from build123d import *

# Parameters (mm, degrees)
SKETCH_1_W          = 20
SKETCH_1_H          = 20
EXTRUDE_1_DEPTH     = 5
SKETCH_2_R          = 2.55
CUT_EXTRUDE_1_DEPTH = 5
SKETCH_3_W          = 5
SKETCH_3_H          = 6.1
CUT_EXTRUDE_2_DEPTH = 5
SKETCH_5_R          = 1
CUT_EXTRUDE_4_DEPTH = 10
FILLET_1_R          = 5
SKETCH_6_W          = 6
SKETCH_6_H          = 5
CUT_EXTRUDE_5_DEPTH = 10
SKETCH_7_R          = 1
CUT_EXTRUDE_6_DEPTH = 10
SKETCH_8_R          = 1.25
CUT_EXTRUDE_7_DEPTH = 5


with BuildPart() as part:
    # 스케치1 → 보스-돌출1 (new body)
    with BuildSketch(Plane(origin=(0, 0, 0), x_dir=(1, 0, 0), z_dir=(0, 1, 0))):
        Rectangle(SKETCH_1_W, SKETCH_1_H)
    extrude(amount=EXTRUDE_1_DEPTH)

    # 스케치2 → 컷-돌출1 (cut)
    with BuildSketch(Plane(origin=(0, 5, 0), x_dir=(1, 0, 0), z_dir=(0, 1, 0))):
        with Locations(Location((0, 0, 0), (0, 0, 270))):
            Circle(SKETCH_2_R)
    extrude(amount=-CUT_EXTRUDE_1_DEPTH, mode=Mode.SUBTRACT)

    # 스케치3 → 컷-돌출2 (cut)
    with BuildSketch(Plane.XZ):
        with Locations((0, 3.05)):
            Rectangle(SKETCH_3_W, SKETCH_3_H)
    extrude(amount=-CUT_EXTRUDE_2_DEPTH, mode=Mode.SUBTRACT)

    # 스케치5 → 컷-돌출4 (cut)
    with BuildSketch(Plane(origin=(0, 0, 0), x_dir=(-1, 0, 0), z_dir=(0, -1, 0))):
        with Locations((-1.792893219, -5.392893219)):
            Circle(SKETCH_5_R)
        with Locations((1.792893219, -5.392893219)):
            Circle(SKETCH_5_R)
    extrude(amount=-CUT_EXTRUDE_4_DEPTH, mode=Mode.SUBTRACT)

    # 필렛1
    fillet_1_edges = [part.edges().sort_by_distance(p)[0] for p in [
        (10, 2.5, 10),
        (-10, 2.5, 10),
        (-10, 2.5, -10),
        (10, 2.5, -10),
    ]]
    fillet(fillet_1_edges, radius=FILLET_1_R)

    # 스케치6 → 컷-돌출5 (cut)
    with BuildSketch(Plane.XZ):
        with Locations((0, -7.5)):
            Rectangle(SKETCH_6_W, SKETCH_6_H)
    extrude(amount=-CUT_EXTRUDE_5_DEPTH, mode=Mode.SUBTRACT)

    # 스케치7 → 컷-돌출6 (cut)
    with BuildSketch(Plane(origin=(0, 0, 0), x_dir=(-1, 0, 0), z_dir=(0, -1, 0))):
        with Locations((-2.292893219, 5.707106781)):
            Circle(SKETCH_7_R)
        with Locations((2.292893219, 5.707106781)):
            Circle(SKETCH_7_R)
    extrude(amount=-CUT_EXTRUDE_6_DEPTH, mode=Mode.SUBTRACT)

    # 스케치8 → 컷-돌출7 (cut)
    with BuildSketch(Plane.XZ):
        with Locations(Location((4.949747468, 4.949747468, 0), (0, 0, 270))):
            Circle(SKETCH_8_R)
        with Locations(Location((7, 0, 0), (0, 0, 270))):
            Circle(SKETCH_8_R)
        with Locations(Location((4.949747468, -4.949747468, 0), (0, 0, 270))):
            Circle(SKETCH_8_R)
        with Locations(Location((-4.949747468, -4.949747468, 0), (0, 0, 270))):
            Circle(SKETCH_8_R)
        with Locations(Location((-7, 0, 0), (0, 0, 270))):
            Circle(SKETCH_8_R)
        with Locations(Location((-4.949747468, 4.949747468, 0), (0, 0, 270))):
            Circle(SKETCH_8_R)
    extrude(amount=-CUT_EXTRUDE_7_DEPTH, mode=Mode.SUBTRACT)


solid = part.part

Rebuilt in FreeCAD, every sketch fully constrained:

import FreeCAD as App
import Part
import Sketcher


def edges_at(feature, points):
    """Names of the edges that pass closest to the given points."""
    edges = feature.Shape.Edges
    near = lambda p: min(range(len(edges)), key=lambda i: edges[i].distToShape(Part.Vertex(*p))[0])
    return sorted({f"Edge{near(p) + 1}" for p in points})


def add_polygon(sketch, points):
    """Adds a closed chain of lines whose ends are joined by coincident constraints."""
    first, n = sketch.GeometryCount, len(points)
    for a, b in zip(points, points[1:] + points[:1]):
        sketch.addGeometry(Part.LineSegment(App.Vector(*a, 0), App.Vector(*b, 0)), False)
    for i in range(n):
        sketch.addConstraint(Sketcher.Constraint("Coincident", first + i, 2, first + (i + 1) % n, 1))

doc = App.newDocument("Part")
body = doc.addObject("PartDesign::Body", "Body")

# Sketch on XZ plane
sketch1 = doc.addObject("Sketcher::SketchObject", "Sketch")
body.addObject(sketch1)
sketch1.AttachmentSupport = (doc.XZ_Plane, [""])
sketch1.MapMode = "FlatFace"
add_polygon(sketch1, [(-10, -10), (-10, 10), (10, 10), (10, -10)])  # lines 0-3
sketch1.addConstraint(Sketcher.Constraint("Vertical", 0))
sketch1.addConstraint(Sketcher.Constraint("Horizontal", 1))
sketch1.addConstraint(Sketcher.Constraint("Vertical", 2))
sketch1.addConstraint(Sketcher.Constraint("Horizontal", 3))
sketch1.addConstraint(Sketcher.Constraint("Symmetric", 0, 2, 2, 2, -1, 1))
sketch1.addConstraint(Sketcher.Constraint("Equal", 3, 0))
sketch1.addConstraint(Sketcher.Constraint("DistanceX", 1, 1, 1, 2, 20.0))
pad1 = doc.addObject("PartDesign::Pad", "Pad")
body.addObject(pad1)
pad1.Profile = sketch1
pad1.Length = 5
pad1.Reversed = True

# Sketch on XZ plane
sketch2 = doc.addObject("Sketcher::SketchObject", "Sketch001")
body.addObject(sketch2)
sketch2.AttachmentSupport = (doc.XZ_Plane, [""])
sketch2.MapMode = "FlatFace"
sketch2.AttachmentOffset = App.Placement(App.Vector(0, 0, -5), App.Rotation())
sketch2.addGeometry(Part.Circle(App.Vector(0, 0, 0), App.Vector(0, 0, 1), 2.5), False)
sketch2.addConstraint(Sketcher.Constraint("Coincident", 0, 3, -1, 1))
sketch2.addConstraint(Sketcher.Constraint("Diameter", 0, 5.1))
pocket1 = doc.addObject("PartDesign::Pocket", "Pocket")
body.addObject(pocket1)
pocket1.Profile = sketch2
pocket1.Length = 5
pocket1.Reversed = True

# Sketch on XZ plane
sketch3 = doc.addObject("Sketcher::SketchObject", "Sketch002")
body.addObject(sketch3)
sketch3.AttachmentSupport = (doc.XZ_Plane, [""])
sketch3.MapMode = "FlatFace"
add_polygon(sketch3, [(-2, 6), (-2, 0), (2, 0), (2, 6)])  # lines 0-3
sketch3.addConstraint(Sketcher.Constraint("Vertical", 0))
sketch3.addConstraint(Sketcher.Constraint("Horizontal", 1))
sketch3.addConstraint(Sketcher.Constraint("Vertical", 2))
sketch3.addConstraint(Sketcher.Constraint("Horizontal", 3))
sketch3.addConstraint(Sketcher.Constraint("Symmetric", 0, 2, 1, 2, -1, 1))
sketch3.addConstraint(Sketcher.Constraint("DistanceX", 1, 1, 1, 2, 5.0))
sketch3.addConstraint(Sketcher.Constraint("DistanceY", 0, 2, 0, 1, 6.1))
pocket2 = doc.addObject("PartDesign::Pocket", "Pocket001")
body.addObject(pocket2)
pocket2.Profile = sketch3
pocket2.Length = 5

# Sketch on XZ plane
sketch4 = doc.addObject("Sketcher::SketchObject", "Sketch003")
body.addObject(sketch4)
sketch4.AttachmentSupport = (doc.XZ_Plane, [""])
sketch4.MapMode = "FlatFace"
sketch4.addGeometry(Part.Circle(App.Vector(1.8, 5.4, 0), App.Vector(0, 0, 1), 1), False)
sketch4.addGeometry(Part.Circle(App.Vector(-1.8, 5.4, 0), App.Vector(0, 0, 1), 1), False)
sketch4.addConstraint(Sketcher.Constraint("Equal", 0, 1))
sketch4.addConstraint(Sketcher.Constraint("Symmetric", 0, 3, 1, 3, -2))
sketch4.addConstraint(Sketcher.Constraint("Diameter", 0, 2.0))
sketch4.addConstraint(Sketcher.Constraint("DistanceX", -1, 1, 0, 3, 1.792893))
sketch4.addConstraint(Sketcher.Constraint("DistanceY", -1, 1, 0, 3, 5.392893))
pocket3 = doc.addObject("PartDesign::Pocket", "Pocket002")
body.addObject(pocket3)
pocket3.Profile = sketch4
pocket3.Length = 10
doc.recompute()

fillet = doc.addObject("PartDesign::Fillet", "Fillet")
body.addObject(fillet)
fillet.Base = (pocket3, edges_at(pocket3, [
    (10, 2.5, 10),
    (-10, 2.5, 10),
    (-10, 2.5, -10),
    (10, 2.5, -10),
]))
fillet.Radius = 5

# Sketch on XZ plane
sketch5 = doc.addObject("Sketcher::SketchObject", "Sketch004")
body.addObject(sketch5)
sketch5.AttachmentSupport = (doc.XZ_Plane, [""])
sketch5.MapMode = "FlatFace"
add_polygon(sketch5, [(-3, -5), (-3, -10), (3, -10), (3, -5)])  # lines 0-3
sketch5.addConstraint(Sketcher.Constraint("Vertical", 0))
sketch5.addConstraint(Sketcher.Constraint("Horizontal", 1))
sketch5.addConstraint(Sketcher.Constraint("Vertical", 2))
sketch5.addConstraint(Sketcher.Constraint("Horizontal", 3))
sketch5.addConstraint(Sketcher.Constraint("DistanceX", 1, 1, 1, 2, 6.0))
sketch5.addConstraint(Sketcher.Constraint("DistanceY", 0, 2, 0, 1, 5.0))
sketch5.addConstraint(Sketcher.Constraint("DistanceX", 0, 2, -1, 1, 3.0))
sketch5.addConstraint(Sketcher.Constraint("DistanceY", 0, 2, -1, 1, 10.0))
pocket4 = doc.addObject("PartDesign::Pocket", "Pocket003")
body.addObject(pocket4)
pocket4.Profile = sketch5
pocket4.Length = 10

# Sketch on XZ plane
sketch6 = doc.addObject("Sketcher::SketchObject", "Sketch005")
body.addObject(sketch6)
sketch6.AttachmentSupport = (doc.XZ_Plane, [""])
sketch6.MapMode = "FlatFace"
sketch6.addGeometry(Part.Circle(App.Vector(2.3, -5.7, 0), App.Vector(0, 0, 1), 1), False)
sketch6.addGeometry(Part.Circle(App.Vector(-2.3, -5.7, 0), App.Vector(0, 0, 1), 1), False)
sketch6.addConstraint(Sketcher.Constraint("Equal", 0, 1))
sketch6.addConstraint(Sketcher.Constraint("Symmetric", 0, 3, 1, 3, -2))
sketch6.addConstraint(Sketcher.Constraint("Diameter", 0, 2.0))
sketch6.addConstraint(Sketcher.Constraint("DistanceX", -1, 1, 0, 3, 2.292893))
sketch6.addConstraint(Sketcher.Constraint("DistanceY", 0, 3, -1, 1, 5.707107))
pocket5 = doc.addObject("PartDesign::Pocket", "Pocket004")
body.addObject(pocket5)
pocket5.Profile = sketch6
pocket5.Length = 10

# Sketch on XZ plane
sketch7 = doc.addObject("Sketcher::SketchObject", "Sketch006")
body.addObject(sketch7)
sketch7.AttachmentSupport = (doc.XZ_Plane, [""])
sketch7.MapMode = "FlatFace"
sketch7.addGeometry(Part.Circle(App.Vector(4.9, 4.9, 0), App.Vector(0, 0, 1), 1.2), False)
sketch7.addGeometry(Part.Circle(App.Vector(7, 0, 0), App.Vector(0, 0, 1), 1.2), False)
sketch7.addGeometry(Part.Circle(App.Vector(4.9, -4.9, 0), App.Vector(0, 0, 1), 1.2), False)
sketch7.addGeometry(Part.Circle(App.Vector(-4.9, -4.9, 0), App.Vector(0, 0, 1), 1.2), False)
sketch7.addGeometry(Part.Circle(App.Vector(-7, 0, 0), App.Vector(0, 0, 1), 1.2), False)
sketch7.addGeometry(Part.Circle(App.Vector(-4.9, 4.9, 0), App.Vector(0, 0, 1), 1.2), False)
sketch7.addConstraint(Sketcher.Constraint("Equal", 0, 1))
sketch7.addConstraint(Sketcher.Constraint("Equal", 1, 2))
sketch7.addConstraint(Sketcher.Constraint("Equal", 2, 3))
sketch7.addConstraint(Sketcher.Constraint("Equal", 3, 4))
sketch7.addConstraint(Sketcher.Constraint("Equal", 4, 5))
sketch7.addConstraint(Sketcher.Constraint("Symmetric", 0, 3, 3, 3, -1, 1))
sketch7.addConstraint(Sketcher.Constraint("Symmetric", 1, 3, 4, 3, -1, 1))
sketch7.addConstraint(Sketcher.Constraint("Symmetric", 2, 3, 5, 3, -1, 1))
sketch7.addConstraint(Sketcher.Constraint("Symmetric", 2, 3, 3, 3, -2))
sketch7.addConstraint(Sketcher.Constraint("PointOnObject", 1, 3, -1))
sketch7.addConstraint(Sketcher.Constraint("Diameter", 0, 2.5))
sketch7.addConstraint(Sketcher.Constraint("DistanceX", -1, 1, 1, 3, 7.0))
sketch7.addConstraint(Sketcher.Constraint("DistanceX", -1, 1, 0, 3, 4.949747))
sketch7.addConstraint(Sketcher.Constraint("DistanceY", -1, 1, 0, 3, 4.949747))
pocket6 = doc.addObject("PartDesign::Pocket", "Pocket005")
body.addObject(pocket6)
pocket6.Profile = sketch7
pocket6.Length = 5

doc.recompute()
